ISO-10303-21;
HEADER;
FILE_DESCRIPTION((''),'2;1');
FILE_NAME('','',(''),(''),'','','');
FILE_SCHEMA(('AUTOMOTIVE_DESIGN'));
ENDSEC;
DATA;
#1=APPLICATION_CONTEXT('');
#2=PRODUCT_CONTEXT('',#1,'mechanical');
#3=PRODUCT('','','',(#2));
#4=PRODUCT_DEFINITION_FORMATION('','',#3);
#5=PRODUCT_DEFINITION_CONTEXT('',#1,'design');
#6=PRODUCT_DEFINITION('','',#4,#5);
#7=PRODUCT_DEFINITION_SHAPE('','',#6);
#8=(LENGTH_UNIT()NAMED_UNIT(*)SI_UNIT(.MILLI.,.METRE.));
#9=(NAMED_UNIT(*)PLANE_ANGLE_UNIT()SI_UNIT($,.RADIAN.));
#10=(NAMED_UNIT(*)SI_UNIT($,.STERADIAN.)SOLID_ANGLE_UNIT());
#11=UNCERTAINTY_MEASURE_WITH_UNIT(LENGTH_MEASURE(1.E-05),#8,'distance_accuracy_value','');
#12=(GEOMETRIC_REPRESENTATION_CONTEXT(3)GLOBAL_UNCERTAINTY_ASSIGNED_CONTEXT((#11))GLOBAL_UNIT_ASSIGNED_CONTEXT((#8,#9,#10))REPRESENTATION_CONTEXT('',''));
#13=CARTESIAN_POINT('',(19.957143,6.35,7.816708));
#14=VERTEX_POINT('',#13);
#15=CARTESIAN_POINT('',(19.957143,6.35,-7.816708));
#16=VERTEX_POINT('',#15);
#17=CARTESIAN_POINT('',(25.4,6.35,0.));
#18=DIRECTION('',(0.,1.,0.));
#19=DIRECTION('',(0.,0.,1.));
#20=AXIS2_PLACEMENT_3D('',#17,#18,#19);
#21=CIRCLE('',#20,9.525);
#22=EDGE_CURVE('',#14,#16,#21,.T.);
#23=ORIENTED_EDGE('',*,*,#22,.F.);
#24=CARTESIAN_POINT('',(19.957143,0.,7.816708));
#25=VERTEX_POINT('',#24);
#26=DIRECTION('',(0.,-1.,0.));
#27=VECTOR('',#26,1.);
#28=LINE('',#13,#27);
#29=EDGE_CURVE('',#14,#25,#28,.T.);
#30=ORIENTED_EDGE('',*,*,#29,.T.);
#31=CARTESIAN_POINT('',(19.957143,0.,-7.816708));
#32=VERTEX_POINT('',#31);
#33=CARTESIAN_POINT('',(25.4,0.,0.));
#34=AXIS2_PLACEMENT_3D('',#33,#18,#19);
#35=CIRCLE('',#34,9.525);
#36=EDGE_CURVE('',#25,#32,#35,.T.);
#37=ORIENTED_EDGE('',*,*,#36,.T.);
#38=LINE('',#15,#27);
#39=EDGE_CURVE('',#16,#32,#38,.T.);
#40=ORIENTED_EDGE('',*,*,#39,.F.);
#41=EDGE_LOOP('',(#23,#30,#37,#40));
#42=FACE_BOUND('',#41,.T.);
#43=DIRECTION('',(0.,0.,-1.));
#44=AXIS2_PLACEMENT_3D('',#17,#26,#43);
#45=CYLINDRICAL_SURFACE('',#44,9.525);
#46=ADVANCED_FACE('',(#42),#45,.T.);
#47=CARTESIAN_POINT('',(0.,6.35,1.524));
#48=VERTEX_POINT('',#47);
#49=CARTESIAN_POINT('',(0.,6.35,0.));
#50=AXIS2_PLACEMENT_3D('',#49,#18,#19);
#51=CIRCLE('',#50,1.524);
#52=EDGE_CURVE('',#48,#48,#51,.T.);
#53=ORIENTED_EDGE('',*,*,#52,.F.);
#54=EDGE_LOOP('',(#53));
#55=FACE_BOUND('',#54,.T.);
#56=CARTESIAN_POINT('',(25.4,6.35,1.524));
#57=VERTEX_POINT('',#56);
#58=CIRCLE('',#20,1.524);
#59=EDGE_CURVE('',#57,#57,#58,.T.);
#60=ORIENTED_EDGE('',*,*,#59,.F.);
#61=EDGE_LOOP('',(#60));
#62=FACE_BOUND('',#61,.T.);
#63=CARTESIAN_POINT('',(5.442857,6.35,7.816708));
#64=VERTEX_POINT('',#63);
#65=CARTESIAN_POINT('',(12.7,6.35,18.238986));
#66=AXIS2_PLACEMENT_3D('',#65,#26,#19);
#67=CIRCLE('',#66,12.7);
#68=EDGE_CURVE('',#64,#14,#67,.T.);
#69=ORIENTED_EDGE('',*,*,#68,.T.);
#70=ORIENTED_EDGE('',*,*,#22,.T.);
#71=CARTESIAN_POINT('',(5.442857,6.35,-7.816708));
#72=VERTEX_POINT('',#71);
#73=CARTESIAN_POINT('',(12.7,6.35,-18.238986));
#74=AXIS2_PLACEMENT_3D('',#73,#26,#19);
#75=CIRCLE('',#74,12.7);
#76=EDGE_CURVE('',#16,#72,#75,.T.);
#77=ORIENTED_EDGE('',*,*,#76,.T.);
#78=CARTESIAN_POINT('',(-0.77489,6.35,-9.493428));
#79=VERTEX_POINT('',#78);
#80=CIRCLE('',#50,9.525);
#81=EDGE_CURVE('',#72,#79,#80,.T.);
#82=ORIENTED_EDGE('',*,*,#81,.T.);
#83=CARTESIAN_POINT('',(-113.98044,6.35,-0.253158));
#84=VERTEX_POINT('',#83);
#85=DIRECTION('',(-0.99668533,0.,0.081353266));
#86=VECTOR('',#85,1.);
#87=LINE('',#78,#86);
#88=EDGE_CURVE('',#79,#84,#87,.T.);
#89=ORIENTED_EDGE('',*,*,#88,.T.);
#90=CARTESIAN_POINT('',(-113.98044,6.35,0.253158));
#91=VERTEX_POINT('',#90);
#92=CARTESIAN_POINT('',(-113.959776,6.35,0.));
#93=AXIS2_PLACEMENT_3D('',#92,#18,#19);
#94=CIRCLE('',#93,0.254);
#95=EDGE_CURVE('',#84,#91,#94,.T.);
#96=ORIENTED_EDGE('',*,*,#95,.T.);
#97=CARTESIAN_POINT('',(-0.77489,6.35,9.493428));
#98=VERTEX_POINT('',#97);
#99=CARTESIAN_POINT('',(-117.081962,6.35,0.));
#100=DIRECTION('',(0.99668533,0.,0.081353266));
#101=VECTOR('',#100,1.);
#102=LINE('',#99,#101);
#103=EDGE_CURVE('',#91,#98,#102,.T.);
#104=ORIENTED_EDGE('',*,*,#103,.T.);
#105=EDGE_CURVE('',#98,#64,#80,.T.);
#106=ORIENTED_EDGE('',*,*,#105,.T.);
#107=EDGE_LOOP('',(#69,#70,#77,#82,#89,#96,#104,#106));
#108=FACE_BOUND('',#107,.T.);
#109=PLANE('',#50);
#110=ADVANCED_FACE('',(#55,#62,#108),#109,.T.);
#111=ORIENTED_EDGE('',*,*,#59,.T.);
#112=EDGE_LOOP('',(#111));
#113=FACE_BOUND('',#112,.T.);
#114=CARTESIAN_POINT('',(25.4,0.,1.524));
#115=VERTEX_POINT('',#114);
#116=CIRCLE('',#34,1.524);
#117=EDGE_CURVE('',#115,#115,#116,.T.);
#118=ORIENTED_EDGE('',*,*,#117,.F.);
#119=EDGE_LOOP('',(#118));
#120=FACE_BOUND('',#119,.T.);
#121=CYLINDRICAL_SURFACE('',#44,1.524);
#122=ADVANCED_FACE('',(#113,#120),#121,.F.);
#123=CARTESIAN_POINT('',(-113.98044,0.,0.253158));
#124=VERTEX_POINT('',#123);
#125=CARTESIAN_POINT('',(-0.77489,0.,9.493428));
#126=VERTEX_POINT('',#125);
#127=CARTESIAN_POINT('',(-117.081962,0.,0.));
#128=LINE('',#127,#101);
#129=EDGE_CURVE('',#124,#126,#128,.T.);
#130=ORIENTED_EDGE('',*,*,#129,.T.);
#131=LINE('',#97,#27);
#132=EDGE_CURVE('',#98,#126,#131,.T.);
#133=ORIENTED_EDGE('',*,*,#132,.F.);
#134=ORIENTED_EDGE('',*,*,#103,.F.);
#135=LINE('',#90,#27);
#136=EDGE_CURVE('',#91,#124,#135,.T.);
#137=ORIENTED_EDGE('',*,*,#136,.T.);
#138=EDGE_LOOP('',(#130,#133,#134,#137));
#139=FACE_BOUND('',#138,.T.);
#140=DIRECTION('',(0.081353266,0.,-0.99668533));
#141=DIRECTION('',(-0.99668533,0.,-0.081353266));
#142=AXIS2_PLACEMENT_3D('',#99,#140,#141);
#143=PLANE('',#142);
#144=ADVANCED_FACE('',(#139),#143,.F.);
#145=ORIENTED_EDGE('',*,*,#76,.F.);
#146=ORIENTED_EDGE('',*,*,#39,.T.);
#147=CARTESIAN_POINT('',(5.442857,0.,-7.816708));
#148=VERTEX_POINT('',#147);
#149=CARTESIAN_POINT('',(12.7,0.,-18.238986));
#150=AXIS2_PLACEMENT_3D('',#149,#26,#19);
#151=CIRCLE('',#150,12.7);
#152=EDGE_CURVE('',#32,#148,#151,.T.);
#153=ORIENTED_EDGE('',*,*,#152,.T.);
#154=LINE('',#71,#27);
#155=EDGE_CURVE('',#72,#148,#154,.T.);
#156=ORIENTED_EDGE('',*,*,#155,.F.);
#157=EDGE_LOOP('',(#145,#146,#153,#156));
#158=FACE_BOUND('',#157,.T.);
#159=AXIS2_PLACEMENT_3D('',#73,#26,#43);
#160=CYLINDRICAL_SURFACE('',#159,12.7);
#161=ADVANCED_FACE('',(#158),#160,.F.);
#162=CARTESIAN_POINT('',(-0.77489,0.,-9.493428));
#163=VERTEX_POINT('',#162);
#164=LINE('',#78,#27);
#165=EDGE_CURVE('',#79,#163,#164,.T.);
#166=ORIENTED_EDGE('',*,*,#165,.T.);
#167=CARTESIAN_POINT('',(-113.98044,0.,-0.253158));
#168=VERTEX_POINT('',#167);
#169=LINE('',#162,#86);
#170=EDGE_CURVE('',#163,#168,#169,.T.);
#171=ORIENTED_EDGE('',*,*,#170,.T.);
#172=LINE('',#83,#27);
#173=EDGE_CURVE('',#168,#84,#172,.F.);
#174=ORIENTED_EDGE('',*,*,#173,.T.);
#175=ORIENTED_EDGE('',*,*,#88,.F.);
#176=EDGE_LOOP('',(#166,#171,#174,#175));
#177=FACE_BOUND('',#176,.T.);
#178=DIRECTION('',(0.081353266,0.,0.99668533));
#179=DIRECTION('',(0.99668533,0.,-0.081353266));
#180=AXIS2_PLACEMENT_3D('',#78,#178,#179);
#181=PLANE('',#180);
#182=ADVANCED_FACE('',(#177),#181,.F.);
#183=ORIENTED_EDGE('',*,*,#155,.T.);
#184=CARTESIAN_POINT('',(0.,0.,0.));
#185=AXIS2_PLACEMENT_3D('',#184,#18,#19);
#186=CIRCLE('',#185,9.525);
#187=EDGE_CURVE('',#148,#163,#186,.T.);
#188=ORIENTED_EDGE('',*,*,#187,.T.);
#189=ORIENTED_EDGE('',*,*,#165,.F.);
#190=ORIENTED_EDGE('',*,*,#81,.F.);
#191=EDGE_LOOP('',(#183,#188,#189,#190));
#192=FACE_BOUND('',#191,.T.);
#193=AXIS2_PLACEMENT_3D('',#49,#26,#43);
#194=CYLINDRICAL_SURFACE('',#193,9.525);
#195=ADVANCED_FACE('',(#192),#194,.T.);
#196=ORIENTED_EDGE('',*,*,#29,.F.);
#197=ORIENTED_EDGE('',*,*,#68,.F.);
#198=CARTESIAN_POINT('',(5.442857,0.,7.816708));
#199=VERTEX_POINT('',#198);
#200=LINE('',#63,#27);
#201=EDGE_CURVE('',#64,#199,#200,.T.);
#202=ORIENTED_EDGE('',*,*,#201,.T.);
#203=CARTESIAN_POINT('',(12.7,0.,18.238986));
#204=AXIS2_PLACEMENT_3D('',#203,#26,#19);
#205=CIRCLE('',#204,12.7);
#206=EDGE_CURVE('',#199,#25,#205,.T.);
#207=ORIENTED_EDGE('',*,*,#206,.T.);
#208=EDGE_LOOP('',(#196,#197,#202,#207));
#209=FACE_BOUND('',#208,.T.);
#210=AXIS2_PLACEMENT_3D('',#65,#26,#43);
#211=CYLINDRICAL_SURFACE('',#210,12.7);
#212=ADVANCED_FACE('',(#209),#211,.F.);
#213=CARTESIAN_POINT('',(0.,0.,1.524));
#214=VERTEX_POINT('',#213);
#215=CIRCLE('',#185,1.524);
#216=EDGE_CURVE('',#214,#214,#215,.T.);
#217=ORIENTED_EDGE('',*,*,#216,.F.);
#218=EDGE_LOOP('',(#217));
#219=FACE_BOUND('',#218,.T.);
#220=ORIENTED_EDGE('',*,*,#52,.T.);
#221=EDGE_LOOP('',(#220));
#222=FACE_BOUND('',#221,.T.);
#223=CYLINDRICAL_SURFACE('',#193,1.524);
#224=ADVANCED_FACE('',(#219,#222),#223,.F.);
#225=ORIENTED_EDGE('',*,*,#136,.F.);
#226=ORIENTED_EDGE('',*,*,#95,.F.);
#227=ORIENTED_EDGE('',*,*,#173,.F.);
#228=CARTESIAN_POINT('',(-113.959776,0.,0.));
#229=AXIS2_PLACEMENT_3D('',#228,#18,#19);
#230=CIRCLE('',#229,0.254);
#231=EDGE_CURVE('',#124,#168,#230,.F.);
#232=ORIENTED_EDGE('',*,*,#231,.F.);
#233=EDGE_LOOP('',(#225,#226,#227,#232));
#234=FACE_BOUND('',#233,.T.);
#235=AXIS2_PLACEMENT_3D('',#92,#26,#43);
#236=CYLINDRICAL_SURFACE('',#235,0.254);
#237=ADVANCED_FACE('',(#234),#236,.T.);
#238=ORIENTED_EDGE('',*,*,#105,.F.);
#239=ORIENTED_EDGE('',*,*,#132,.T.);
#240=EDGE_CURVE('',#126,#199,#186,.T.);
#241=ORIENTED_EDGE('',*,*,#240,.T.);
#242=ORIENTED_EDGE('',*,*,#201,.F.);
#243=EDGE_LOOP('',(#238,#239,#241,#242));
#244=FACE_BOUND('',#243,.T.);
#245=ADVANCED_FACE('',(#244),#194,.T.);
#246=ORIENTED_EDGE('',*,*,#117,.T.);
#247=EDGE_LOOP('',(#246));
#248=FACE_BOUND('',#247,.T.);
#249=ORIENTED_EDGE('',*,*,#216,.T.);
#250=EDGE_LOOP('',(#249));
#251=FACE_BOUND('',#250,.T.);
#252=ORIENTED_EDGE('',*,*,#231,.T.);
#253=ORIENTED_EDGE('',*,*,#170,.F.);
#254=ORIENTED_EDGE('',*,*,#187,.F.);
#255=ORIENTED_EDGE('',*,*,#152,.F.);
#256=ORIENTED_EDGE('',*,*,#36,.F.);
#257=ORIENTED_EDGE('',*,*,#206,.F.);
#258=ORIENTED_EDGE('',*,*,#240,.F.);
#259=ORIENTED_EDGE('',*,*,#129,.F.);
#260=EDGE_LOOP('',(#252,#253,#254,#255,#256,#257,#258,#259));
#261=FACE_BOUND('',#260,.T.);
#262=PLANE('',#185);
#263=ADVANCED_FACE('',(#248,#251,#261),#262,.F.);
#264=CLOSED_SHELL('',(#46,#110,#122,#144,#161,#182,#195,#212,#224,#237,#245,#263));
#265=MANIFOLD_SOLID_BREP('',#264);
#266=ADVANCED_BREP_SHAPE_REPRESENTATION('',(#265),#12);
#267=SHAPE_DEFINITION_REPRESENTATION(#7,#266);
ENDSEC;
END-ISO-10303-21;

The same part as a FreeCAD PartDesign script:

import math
import FreeCAD as App
import Part
import Sketcher
Q = App.Units.Quantity


def edges_at(feature, points):
    """Names of the edges that pass closest to the given points."""
    edges = feature.Shape.Edges
    near = lambda p: min(range(len(edges)), key=lambda i: edges[i].distToShape(Part.Vertex(*p))[0])
    return sorted({f"Edge{near(p) + 1}" for p in points})

doc = App.newDocument("Part")
body = doc.addObject("PartDesign::Body", "Body")

sketch1 = body.newObject("Sketcher::SketchObject", "Sketch")
sketch1.AttachmentSupport = (doc.getObject("XZ_Plane"), [""])
sketch1.MapMode = "FlatFace"
sketch1.addGeometry([
    Part.LineSegment(App.Vector(-0.8, -9.5, 0), App.Vector(-117.1, 0, 0)),
    Part.LineSegment(App.Vector(-117.1, 0, 0), App.Vector(-0.8, 9.5, 0)),
    Part.ArcOfCircle(Part.Circle(App.Vector(0, 0, 0), App.Vector(0, 0, 1), 9.5), math.radians(55), math.radians(95)),
    Part.ArcOfCircle(Part.Circle(App.Vector(12.7, 18.2, 0), App.Vector(0, 0, 1), 12.7), math.radians(-125), math.radians(-55)),
    Part.ArcOfCircle(Part.Circle(App.Vector(25.4, 0, 0), App.Vector(0, 0, 1), 9.5), math.radians(-125), math.radians(125)),
    Part.ArcOfCircle(Part.Circle(App.Vector(12.7, -18.2, 0), App.Vector(0, 0, 1), 12.7), math.radians(55), math.radians(125)),
    Part.ArcOfCircle(Part.Circle(App.Vector(0, 0, 0), App.Vector(0, 0, 1), 9.5), math.radians(-95), math.radians(-55)),
    Part.Circle(App.Vector(0, 0, 0), App.Vector(0, 0, 1), 1.5),
    Part.Circle(App.Vector(25.4, 0, 0), App.Vector(0, 0, 1), 1.5),
], False)
sketch1.addConstraint([
    Sketcher.Constraint("Coincident", 0, 2, 1, 1),
    Sketcher.Constraint("Tangent", 1, 2, 2, 2),
    Sketcher.Constraint("Tangent", 2, 1, 3, 1),
    Sketcher.Constraint("Tangent", 3, 2, 4, 2),
    Sketcher.Constraint("Tangent", 4, 1, 5, 1),
    Sketcher.Constraint("Tangent", 5, 2, 6, 2),
    Sketcher.Constraint("Tangent", 6, 1, 0, 1),
    Sketcher.Constraint("Coincident", 2, 3, -1, 1),
    Sketcher.Constraint("Coincident", 6, 3, -1, 1),
    Sketcher.Constraint("Coincident", 7, 3, -1, 1),
    Sketcher.Constraint("Coincident", 8, 3, 4, 3),
    Sketcher.Constraint("Equal", 2, 4),
    Sketcher.Constraint("Equal", 3, 5),
    Sketcher.Constraint("Equal", 4, 6),
    Sketcher.Constraint("Equal", 7, 8),
    Sketcher.Constraint("PointOnObject", 4, 3, -1),
    Sketcher.Constraint("PointOnObject", 0, 2, -1),
    Sketcher.Constraint("Radius", 3, Q("0.5 in")),
    Sketcher.Constraint("Diameter", 7, Q("0.12 in")),
    Sketcher.Constraint("DistanceX", -1, 1, 4, 3, Q("1 in")),
    Sketcher.Constraint("Radius", 2, Q("0.375 in")),
    Sketcher.Constraint("DistanceX", 0, 2, -1, 1, Q("117.081962 mm")),
])
pad1 = body.newObject("PartDesign::Pad", "Pad")
pad1.Profile = sketch1
pad1.Length = Q("0.25 in")
pad1.Reversed = True
doc.recompute()

fillet = body.newObject("PartDesign::Fillet", "Fillet")
fillet.Base = (pad1, edges_at(pad1, [(-117.082, 3.175, 0)]))
fillet.Radius = Q("0.01 in")

doc.recompute()
